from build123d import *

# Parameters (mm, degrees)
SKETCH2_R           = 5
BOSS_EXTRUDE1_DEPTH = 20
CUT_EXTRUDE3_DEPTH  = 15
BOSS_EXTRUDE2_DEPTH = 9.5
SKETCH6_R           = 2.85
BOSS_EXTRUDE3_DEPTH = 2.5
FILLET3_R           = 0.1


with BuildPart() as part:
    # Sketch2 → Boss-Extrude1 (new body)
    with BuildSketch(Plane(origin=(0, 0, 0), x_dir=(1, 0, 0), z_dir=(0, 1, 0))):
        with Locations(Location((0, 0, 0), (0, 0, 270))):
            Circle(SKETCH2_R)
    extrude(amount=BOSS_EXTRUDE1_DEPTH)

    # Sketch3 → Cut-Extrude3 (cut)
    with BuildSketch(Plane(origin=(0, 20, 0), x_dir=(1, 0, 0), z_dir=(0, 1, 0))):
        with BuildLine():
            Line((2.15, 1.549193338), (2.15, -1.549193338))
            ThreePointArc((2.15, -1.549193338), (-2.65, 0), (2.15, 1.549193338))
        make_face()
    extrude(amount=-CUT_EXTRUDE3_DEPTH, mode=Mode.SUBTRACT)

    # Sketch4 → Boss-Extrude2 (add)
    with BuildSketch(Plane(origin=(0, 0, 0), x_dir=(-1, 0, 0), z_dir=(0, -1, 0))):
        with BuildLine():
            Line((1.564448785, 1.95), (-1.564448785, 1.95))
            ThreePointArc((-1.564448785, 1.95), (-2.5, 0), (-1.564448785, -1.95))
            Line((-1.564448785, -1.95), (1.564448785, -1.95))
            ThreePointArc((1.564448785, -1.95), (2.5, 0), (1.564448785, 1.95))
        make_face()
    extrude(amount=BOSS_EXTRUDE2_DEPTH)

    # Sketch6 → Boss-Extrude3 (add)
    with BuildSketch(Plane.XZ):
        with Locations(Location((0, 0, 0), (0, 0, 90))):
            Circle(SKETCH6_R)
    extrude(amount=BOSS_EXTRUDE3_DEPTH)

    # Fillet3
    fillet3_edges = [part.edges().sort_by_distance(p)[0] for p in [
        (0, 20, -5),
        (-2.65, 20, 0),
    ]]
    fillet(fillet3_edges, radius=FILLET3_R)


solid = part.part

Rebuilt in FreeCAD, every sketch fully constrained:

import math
import FreeCAD as App
import Part
import Sketcher

V = App.Vector


def edges_at(feature, points):
    """Names of the edges that pass closest to the given points."""
    edges = feature.Shape.Edges
    near = lambda p: min(range(len(edges)), key=lambda i: edges[i].distToShape(Part.Vertex(*p))[0])
    return sorted({f"Edge{near(p) + 1}" for p in points})

doc = App.newDocument("Part")
body = doc.addObject("PartDesign::Body", "Body")

# Sketch on XZ plane
sketch1 = body.newObject("Sketcher::SketchObject", "Sketch")
sketch1.AttachmentSupport = (doc.getObject("XZ_Plane"), [""])
sketch1.MapMode = "FlatFace"
sketch1.addGeometry(Part.Circle(V(0, 0, 0), V(0, 0, 1), 5), False)
sketch1.addConstraint([
    Sketcher.Constraint("Coincident", 0, 3, -1, 1),
    Sketcher.Constraint("Diameter", 0, 10.0),
])
pad1 = body.newObject("PartDesign::Pad", "Pad")
pad1.Profile = sketch1
pad1.Length = 20
pad1.Reversed = True

# Sketch on XZ plane
sketch2 = body.newObject("Sketcher::SketchObject", "Sketch001")
sketch2.AttachmentSupport = (doc.getObject("XZ_Plane"), [""])
sketch2.MapMode = "FlatFace"
sketch2.AttachmentOffset = App.Placement(V(0, 0, -20), App.Rotation())
sketch2.addGeometry([
    Part.LineSegment(V(2.1, 1.5, 0), V(2.1, -1.5, 0)),
    Part.ArcOfCircle(Part.Circle(V(0, 0, 0), V(0, 0, 1), 2.6), math.radians(36), math.radians(324)),
], False)
sketch2.addConstraint([
    Sketcher.Constraint("Coincident", 0, 1, 1, 1),
    Sketcher.Constraint("Coincident", 1, 2, 0, 2),
    Sketcher.Constraint("Vertical", 0),
    Sketcher.Constraint("Coincident", 1, 3, -1, 1),
    Sketcher.Constraint("Radius", 1, 2.65),
    Sketcher.Constraint("DistanceX", -1, 1, 0, 1, 2.15),
])
pocket1 = body.newObject("PartDesign::Pocket", "Pocket")
pocket1.Profile = sketch2
pocket1.Length = 15
pocket1.Reversed = True

# Sketch on XZ plane
sketch3 = body.newObject("Sketcher::SketchObject", "Sketch002")
sketch3.AttachmentSupport = (doc.getObject("XZ_Plane"), [""])
sketch3.MapMode = "FlatFace"
sketch3.addGeometry([
    Part.LineSegment(V(-1.6, -1.9, 0), V(1.6, -1.9, 0)),
    Part.ArcOfCircle(Part.Circle(V(0, 0, 0), V(0, 0, 1), 2.5), math.radians(-51), math.radians(51)),
    Part.LineSegment(V(1.6, 1.9, 0), V(-1.6, 1.9, 0)),
    Part.ArcOfCircle(Part.Circle(V(0, 0, 0), V(0, 0, 1), 2.5), math.radians(129), math.radians(231)),
], False)
sketch3.addConstraint([
    Sketcher.Constraint("Coincident", 0, 2, 1, 1),
    Sketcher.Constraint("Coincident", 1, 2, 2, 1),
    Sketcher.Constraint("Coincident", 2, 2, 3, 1),
    Sketcher.Constraint("Coincident", 3, 2, 0, 1),
    Sketcher.Constraint("Horizontal", 0),
    Sketcher.Constraint("Horizontal", 2),
    Sketcher.Constraint("Coincident", 1, 3, -1, 1),
    Sketcher.Constraint("Coincident", 3, 3, -1, 1),
    Sketcher.Constraint("Equal", 1, 3),
    Sketcher.Constraint("Vertical", 0, 2, 1, 2),
    Sketcher.Constraint("Radius", 1, 2.5),
    Sketcher.Constraint("DistanceY", 0, 2, 1, 2, 3.9),
])
pad2 = body.newObject("PartDesign::Pad", "Pad001")
pad2.Profile = sketch3
pad2.Length = 9.5

# Sketch on XZ plane
sketch4 = body.newObject("Sketcher::SketchObject", "Sketch003")
sketch4.AttachmentSupport = (doc.getObject("XZ_Plane"), [""])
sketch4.MapMode = "FlatFace"
sketch4.addGeometry(Part.Circle(V(0, 0, 0), V(0, 0, 1), 2.9), False)
sketch4.addConstraint([
    Sketcher.Constraint("Coincident", 0, 3, -1, 1),
    Sketcher.Constraint("Diameter", 0, 5.7),
])
pad3 = body.newObject("PartDesign::Pad", "Pad002")
pad3.Profile = sketch4
pad3.Length = 2.5
doc.recompute()

fillet = body.newObject("PartDesign::Fillet", "Fillet")
fillet.Base = (pad3, edges_at(pad3, [(0, 20, -5), (-2.65, 20, 0)]))
fillet.Radius = 0.1

doc.recompute()
